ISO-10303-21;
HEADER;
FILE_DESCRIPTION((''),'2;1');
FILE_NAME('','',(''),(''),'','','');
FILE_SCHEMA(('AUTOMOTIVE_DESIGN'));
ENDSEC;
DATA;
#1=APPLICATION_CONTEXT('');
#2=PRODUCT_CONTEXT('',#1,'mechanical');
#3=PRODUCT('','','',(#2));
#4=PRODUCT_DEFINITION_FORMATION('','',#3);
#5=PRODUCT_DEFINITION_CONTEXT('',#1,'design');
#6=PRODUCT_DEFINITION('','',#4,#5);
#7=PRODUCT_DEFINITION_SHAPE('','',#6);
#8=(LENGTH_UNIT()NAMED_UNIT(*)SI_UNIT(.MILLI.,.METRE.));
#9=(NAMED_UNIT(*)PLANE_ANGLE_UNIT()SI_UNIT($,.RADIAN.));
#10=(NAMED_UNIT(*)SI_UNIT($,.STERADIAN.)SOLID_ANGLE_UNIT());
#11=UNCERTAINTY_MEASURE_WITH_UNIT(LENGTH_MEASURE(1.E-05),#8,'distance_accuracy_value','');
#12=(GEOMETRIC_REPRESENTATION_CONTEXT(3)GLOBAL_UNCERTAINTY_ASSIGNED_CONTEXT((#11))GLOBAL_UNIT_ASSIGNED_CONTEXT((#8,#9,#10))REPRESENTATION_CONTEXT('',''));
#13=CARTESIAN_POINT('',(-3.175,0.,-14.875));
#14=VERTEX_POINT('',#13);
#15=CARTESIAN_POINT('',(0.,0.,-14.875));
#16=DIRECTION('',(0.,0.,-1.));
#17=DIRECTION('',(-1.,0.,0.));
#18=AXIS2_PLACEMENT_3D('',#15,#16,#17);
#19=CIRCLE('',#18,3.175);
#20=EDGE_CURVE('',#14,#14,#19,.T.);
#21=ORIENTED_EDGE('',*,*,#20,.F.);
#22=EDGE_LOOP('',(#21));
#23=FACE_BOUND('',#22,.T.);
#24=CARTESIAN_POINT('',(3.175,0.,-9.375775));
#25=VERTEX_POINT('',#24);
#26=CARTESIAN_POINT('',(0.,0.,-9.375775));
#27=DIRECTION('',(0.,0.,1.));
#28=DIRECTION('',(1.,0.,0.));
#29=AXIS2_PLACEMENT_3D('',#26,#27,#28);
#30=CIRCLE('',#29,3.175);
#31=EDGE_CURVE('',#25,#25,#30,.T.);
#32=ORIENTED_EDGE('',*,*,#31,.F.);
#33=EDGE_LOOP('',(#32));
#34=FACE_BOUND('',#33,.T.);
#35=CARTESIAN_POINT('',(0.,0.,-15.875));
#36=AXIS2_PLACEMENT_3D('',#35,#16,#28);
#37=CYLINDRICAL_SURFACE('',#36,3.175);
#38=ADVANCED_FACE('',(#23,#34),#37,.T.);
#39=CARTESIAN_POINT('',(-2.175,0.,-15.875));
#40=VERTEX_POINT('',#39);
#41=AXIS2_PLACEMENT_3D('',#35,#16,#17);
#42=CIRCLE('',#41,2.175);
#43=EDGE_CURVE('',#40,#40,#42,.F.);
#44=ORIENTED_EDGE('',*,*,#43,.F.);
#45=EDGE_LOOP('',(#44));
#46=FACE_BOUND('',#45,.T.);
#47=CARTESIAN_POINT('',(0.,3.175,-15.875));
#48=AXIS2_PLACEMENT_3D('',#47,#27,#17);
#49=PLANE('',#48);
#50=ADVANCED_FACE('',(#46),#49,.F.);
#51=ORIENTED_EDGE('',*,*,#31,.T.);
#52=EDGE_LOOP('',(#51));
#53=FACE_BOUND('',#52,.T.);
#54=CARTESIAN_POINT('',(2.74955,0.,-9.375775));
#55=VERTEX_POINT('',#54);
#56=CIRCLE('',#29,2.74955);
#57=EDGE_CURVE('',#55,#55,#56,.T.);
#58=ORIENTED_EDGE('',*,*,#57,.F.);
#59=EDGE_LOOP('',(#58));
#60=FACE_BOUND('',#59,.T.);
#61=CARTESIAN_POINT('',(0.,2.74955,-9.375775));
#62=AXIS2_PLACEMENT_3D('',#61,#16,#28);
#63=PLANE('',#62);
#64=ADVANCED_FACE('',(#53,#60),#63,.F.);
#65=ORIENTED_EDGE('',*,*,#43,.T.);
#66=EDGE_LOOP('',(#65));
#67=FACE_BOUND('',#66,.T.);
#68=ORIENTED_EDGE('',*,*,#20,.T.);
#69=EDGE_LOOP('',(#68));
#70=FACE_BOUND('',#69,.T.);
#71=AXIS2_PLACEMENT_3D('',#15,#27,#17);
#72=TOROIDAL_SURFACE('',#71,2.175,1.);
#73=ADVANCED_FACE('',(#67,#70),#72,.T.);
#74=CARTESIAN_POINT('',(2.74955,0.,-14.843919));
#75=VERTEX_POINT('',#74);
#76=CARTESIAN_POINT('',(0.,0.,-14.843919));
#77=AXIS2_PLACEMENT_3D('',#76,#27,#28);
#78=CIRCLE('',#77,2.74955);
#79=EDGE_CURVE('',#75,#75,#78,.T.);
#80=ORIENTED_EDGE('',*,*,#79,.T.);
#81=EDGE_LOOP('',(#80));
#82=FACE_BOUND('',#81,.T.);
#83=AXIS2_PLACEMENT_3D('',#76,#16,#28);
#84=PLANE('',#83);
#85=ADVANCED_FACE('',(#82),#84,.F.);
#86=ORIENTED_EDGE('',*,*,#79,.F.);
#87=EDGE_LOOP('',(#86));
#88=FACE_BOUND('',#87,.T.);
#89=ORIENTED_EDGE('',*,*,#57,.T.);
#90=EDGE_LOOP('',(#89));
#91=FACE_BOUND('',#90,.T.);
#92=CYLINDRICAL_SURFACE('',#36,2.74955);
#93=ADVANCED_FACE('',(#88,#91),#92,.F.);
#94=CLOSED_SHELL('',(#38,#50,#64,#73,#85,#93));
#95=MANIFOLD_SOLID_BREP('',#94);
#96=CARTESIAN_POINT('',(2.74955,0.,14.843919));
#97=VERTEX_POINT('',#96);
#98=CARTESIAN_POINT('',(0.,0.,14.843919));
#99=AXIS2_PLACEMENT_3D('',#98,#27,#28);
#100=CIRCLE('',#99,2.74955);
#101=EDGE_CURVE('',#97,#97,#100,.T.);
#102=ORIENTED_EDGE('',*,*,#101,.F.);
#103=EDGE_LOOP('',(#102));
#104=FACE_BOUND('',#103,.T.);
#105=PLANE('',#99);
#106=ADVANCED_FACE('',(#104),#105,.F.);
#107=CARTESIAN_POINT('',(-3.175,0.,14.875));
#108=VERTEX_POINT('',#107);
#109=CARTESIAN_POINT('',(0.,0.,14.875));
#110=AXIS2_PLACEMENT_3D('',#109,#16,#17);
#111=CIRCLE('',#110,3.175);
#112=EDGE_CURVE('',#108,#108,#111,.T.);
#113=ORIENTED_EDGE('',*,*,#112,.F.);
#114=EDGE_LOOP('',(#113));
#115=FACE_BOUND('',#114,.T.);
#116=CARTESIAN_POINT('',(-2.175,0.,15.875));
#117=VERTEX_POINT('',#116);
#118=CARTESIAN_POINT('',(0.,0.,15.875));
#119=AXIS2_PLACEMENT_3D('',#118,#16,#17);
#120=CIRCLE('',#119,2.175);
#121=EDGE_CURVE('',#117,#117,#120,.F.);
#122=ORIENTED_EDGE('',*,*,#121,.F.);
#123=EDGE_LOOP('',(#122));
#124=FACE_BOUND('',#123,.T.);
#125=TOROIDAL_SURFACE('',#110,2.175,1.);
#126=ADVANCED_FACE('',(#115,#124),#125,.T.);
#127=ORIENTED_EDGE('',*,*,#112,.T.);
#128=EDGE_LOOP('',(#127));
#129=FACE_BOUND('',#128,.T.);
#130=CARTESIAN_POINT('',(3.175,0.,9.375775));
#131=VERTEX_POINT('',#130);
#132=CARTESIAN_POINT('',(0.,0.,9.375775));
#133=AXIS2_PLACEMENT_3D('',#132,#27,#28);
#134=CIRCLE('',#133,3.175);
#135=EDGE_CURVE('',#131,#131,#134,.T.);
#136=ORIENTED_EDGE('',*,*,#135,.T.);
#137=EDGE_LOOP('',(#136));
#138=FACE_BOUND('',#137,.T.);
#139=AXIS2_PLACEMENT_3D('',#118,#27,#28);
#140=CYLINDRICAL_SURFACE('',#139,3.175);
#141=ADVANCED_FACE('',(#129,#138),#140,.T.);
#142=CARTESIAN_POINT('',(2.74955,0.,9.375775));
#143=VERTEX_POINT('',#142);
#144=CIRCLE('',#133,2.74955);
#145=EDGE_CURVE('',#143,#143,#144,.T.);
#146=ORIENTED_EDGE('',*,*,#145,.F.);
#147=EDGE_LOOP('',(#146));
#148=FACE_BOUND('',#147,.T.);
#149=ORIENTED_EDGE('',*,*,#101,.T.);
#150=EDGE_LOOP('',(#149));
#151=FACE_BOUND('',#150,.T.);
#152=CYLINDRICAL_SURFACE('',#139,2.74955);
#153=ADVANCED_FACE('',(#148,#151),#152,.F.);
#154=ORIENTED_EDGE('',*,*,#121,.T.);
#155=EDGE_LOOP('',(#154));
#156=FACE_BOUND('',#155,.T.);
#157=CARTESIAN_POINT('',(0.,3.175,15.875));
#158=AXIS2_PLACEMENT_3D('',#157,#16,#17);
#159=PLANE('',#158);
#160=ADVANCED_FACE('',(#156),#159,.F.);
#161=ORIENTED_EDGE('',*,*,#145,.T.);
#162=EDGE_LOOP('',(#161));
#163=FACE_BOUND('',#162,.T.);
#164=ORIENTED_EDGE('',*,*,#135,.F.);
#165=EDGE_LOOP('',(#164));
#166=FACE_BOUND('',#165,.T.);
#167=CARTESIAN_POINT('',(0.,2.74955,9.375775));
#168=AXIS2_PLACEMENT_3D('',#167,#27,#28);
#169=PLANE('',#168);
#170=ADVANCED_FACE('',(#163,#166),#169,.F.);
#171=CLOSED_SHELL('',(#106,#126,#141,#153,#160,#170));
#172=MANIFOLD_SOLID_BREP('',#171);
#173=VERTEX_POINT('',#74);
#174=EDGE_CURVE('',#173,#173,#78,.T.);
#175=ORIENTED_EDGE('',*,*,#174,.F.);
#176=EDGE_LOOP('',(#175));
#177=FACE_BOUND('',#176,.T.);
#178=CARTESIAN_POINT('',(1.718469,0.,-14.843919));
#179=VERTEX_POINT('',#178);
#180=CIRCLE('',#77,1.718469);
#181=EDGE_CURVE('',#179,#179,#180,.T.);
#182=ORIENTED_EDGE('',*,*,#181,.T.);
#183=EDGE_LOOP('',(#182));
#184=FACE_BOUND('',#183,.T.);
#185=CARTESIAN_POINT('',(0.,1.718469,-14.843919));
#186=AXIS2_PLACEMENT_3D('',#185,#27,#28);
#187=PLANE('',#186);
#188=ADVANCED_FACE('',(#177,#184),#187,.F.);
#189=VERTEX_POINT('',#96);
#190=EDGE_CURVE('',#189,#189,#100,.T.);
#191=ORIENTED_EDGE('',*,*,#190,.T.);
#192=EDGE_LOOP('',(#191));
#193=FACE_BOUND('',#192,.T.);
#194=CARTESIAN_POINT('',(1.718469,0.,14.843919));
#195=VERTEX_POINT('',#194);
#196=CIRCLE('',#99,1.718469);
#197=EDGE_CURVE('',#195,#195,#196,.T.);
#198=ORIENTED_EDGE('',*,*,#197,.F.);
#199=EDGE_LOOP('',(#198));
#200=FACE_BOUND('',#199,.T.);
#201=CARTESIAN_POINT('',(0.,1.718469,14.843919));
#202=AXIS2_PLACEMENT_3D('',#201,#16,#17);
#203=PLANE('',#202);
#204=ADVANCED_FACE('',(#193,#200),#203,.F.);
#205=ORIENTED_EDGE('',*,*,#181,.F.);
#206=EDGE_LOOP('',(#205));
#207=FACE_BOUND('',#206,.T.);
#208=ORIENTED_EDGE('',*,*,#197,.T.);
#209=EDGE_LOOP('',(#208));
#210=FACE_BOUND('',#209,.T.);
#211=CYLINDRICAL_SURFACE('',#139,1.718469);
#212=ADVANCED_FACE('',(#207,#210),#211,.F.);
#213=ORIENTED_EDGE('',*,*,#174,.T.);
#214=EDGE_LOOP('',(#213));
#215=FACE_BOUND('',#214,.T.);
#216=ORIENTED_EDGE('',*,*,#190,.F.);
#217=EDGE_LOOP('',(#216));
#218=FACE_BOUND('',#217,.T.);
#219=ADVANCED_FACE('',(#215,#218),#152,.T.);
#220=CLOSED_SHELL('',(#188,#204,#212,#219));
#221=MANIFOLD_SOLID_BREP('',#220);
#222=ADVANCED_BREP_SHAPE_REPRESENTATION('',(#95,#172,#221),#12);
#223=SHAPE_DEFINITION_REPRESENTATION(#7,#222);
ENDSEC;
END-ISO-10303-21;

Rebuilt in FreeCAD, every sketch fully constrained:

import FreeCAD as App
import Part
import Sketcher
Q = App.Units.Quantity


def edges_at(feature, points):
    """Names of the edges that pass closest to the given points."""
    edges = feature.Shape.Edges
    near = lambda p: min(range(len(edges)), key=lambda i: edges[i].distToShape(Part.Vertex(*p))[0])
    return sorted({f"Edge{near(p) + 1}" for p in points})


def add_polygon(sketch, points):
    """Adds a closed chain of lines whose ends are joined by coincident constraints."""
    first, n = sketch.GeometryCount, len(points)
    for a, b in zip(points, points[1:] + points[:1]):
        sketch.addGeometry(Part.LineSegment(App.Vector(*a, 0), App.Vector(*b, 0)), False)
    for i in range(n):
        sketch.addConstraint(Sketcher.Constraint("Coincident", first + i, 2, first + (i + 1) % n, 1))

doc = App.newDocument("Part")
body = doc.addObject("PartDesign::Body", "Body")

# Sketch on YZ plane
sketch1 = body.newObject("Sketcher::SketchObject", "Sketch")
sketch1.AttachmentSupport = (doc.getObject("YZ_Plane"), [""])
sketch1.MapMode = "FlatFace"
add_polygon(sketch1, [(2.7, 14.8), (1.7, 14.8), (1.7, -14.8), (2.7, -14.8)])  # lines 0-3
sketch1.addConstraint(Sketcher.Constraint("Horizontal", 0))
sketch1.addConstraint(Sketcher.Constraint("Vertical", 1))
sketch1.addConstraint(Sketcher.Constraint("Horizontal", 2))
sketch1.addConstraint(Sketcher.Constraint("Vertical", 3))
sketch1.addConstraint(Sketcher.Constraint("DistanceX", 0, 2, 0, 1, Q("1.031081 mm")))
sketch1.addConstraint(Sketcher.Constraint("DistanceY", 1, 2, 1, 1, Q("29.687838 mm")))
sketch1.addConstraint(Sketcher.Constraint("DistanceX", -1, 1, 0, 2, Q("1.718469 mm")))
sketch1.addConstraint(Sketcher.Constraint("DistanceY", -1, 1, 0, 2, Q("14.843919 mm")))
revolution = body.newObject("PartDesign::Revolution", "Revolution")
revolution.Profile = sketch1
revolution.ReferenceAxis = (sketch1, ["V_Axis"])
revolution.Angle = 360
body2 = doc.addObject("PartDesign::Body", "Body001")

# Sketch on YZ plane
sketch2 = body2.newObject("Sketcher::SketchObject", "Sketch001")
sketch2.AttachmentSupport = (doc.getObject("YZ_Plane001"), [""])
sketch2.MapMode = "FlatFace"
add_polygon(sketch2, [(2.75, 9.38), (3.17, 9.38), (3.17, 15.88), (0, 15.88), (0, 14.84), (2.75, 14.84)])  # lines 0-5
sketch2.addConstraint(Sketcher.Constraint("Horizontal", 0))
sketch2.addConstraint(Sketcher.Constraint("Vertical", 1))
sketch2.addConstraint(Sketcher.Constraint("Horizontal", 2))
sketch2.addConstraint(Sketcher.Constraint("Vertical", 3))
sketch2.addConstraint(Sketcher.Constraint("Horizontal", 4))
sketch2.addConstraint(Sketcher.Constraint("Vertical", 5))
sketch2.addConstraint(Sketcher.Constraint("PointOnObject", 2, 2, -2))
sketch2.addConstraint(Sketcher.Constraint("DistanceX", 2, 2, 2, 1, Q("3.175 mm")))
sketch2.addConstraint(Sketcher.Constraint("DistanceY", -1, 1, 1, 2, Q("15.875 mm")))
sketch2.addConstraint(Sketcher.Constraint("DistanceX", 0, 1, 0, 2, Q("0.42545 mm")))
sketch2.addConstraint(Sketcher.Constraint("DistanceY", 3, 2, 3, 1, Q("1.031081 mm")))
sketch2.addConstraint(Sketcher.Constraint("DistanceY", 1, 1, 1, 2, Q("6.499225 mm")))
revolution2 = body2.newObject("PartDesign::Revolution", "Revolution001")
revolution2.Profile = sketch2
revolution2.ReferenceAxis = (sketch2, ["V_Axis"])
revolution2.Angle = 360
doc.recompute()

fillet = body2.newObject("PartDesign::Fillet", "Fillet")
fillet.Base = (revolution2, edges_at(revolution2, [(-3.175, 0, 15.875)]))
fillet.Radius = 1
body3 = doc.addObject("PartDesign::Body", "Body002")
doc.recompute()

mirroring = doc.addObject("Part::Mirroring", "Mirroring")
mirroring.Source = body2
mirroring.Base = App.Vector(0, 0, 0)
mirroring.Normal = App.Vector(0, 0, 1)
body3.BaseFeature = mirroring
doc.recompute()
mirroring.Visibility = False

doc.recompute()
